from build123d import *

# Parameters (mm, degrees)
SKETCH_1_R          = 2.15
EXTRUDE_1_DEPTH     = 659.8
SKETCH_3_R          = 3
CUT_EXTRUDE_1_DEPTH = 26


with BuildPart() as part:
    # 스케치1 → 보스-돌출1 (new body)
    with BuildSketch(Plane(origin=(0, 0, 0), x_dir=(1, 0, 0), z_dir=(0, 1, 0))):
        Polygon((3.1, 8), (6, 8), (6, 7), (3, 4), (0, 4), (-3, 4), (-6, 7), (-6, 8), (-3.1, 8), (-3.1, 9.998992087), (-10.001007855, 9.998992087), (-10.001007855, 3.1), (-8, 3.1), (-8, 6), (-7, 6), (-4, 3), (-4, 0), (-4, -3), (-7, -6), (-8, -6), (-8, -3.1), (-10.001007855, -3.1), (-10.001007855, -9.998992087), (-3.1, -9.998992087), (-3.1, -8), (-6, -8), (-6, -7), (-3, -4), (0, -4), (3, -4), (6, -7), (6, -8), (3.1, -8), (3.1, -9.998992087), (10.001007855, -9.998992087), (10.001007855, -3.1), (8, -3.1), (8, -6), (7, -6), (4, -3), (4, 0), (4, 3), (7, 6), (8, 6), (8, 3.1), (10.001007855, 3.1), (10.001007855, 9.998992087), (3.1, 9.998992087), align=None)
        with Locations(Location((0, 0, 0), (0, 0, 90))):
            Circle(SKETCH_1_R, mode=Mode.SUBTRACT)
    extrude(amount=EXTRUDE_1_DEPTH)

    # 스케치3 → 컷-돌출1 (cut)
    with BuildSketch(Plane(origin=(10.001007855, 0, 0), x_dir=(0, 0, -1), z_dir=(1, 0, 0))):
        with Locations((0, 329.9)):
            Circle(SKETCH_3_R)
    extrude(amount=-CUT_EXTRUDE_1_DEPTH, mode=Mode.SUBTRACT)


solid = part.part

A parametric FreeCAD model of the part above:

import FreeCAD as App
import Part
import Sketcher
from FreeCAD import Vector
Q = App.Units.Quantity

doc = App.newDocument("Part")
body = doc.addObject("PartDesign::Body", "Body")

# Sketch on XZ plane
sketch1 = doc.addObject("Sketcher::SketchObject", "Sketch")
body.addObject(sketch1)
sketch1.AttachmentSupport = (doc.XZ_Plane, [""])
sketch1.MapMode = "FlatFace"
sketch1.addGeometry(Part.LineSegment(Vector(3.1, -8, 0), Vector(6, -8, 0)), False)
sketch1.addGeometry(Part.LineSegment(Vector(6, -8, 0), Vector(6, -7, 0)), False)
sketch1.addGeometry(Part.LineSegment(Vector(6, -7, 0), Vector(3, -4, 0)), False)
sketch1.addGeometry(Part.LineSegment(Vector(3, -4, 0), Vector(-3, -4, 0)), False)
sketch1.addGeometry(Part.LineSegment(Vector(-3, -4, 0), Vector(-6, -7, 0)), False)
sketch1.addGeometry(Part.LineSegment(Vector(-6, -7, 0), Vector(-6, -8, 0)), False)
sketch1.addGeometry(Part.LineSegment(Vector(-6, -8, 0), Vector(-3.1, -8, 0)), False)
sketch1.addGeometry(Part.LineSegment(Vector(-3.1, -8, 0), Vector(-3.1, -10, 0)), False)
sketch1.addGeometry(Part.LineSegment(Vector(-3.1, -10, 0), Vector(-10, -10, 0)), False)
sketch1.addGeometry(Part.LineSegment(Vector(-10, -10, 0), Vector(-10, -3.1, 0)), False)
sketch1.addGeometry(Part.LineSegment(Vector(-10, -3.1, 0), Vector(-8, -3.1, 0)), False)
sketch1.addGeometry(Part.LineSegment(Vector(-8, -3.1, 0), Vector(-8, -6, 0)), False)
sketch1.addGeometry(Part.LineSegment(Vector(-8, -6, 0), Vector(-7, -6, 0)), False)
sketch1.addGeometry(Part.LineSegment(Vector(-7, -6, 0), Vector(-4, -3, 0)), False)
sketch1.addGeometry(Part.LineSegment(Vector(-4, -3, 0), Vector(-4, 3, 0)), False)
sketch1.addGeometry(Part.LineSegment(Vector(-4, 3, 0), Vector(-7, 6, 0)), False)
sketch1.addGeometry(Part.LineSegment(Vector(-7, 6, 0), Vector(-8, 6, 0)), False)
sketch1.addGeometry(Part.LineSegment(Vector(-8, 6, 0), Vector(-8, 3.1, 0)), False)
sketch1.addGeometry(Part.LineSegment(Vector(-8, 3.1, 0), Vector(-10, 3.1, 0)), False)
sketch1.addGeometry(Part.LineSegment(Vector(-10, 3.1, 0), Vector(-10, 10, 0)), False)
sketch1.addGeometry(Part.LineSegment(Vector(-10, 10, 0), Vector(-3.1, 10, 0)), False)
sketch1.addGeometry(Part.LineSegment(Vector(-3.1, 10, 0), Vector(-3.1, 8, 0)), False)
sketch1.addGeometry(Part.LineSegment(Vector(-3.1, 8, 0), Vector(-6, 8, 0)), False)
sketch1.addGeometry(Part.LineSegment(Vector(-6, 8, 0), Vector(-6, 7, 0)), False)
sketch1.addGeometry(Part.LineSegment(Vector(-6, 7, 0), Vector(-3, 4, 0)), False)
sketch1.addGeometry(Part.LineSegment(Vector(-3, 4, 0), Vector(3, 4, 0)), False)
sketch1.addGeometry(Part.LineSegment(Vector(3, 4, 0), Vector(6, 7, 0)), False)
sketch1.addGeometry(Part.LineSegment(Vector(6, 7, 0), Vector(6, 8, 0)), False)
sketch1.addGeometry(Part.LineSegment(Vector(6, 8, 0), Vector(3.1, 8, 0)), False)
sketch1.addGeometry(Part.LineSegment(Vector(3.1, 8, 0), Vector(3.1, 10, 0)), False)
sketch1.addGeometry(Part.LineSegment(Vector(3.1, 10, 0), Vector(10, 10, 0)), False)
sketch1.addGeometry(Part.LineSegment(Vector(10, 10, 0), Vector(10, 3.1, 0)), False)
sketch1.addGeometry(Part.LineSegment(Vector(10, 3.1, 0), Vector(8, 3.1, 0)), False)
sketch1.addGeometry(Part.LineSegment(Vector(8, 3.1, 0), Vector(8, 6, 0)), False)
sketch1.addGeometry(Part.LineSegment(Vector(8, 6, 0), Vector(7, 6, 0)), False)
sketch1.addGeometry(Part.LineSegment(Vector(7, 6, 0), Vector(4, 3, 0)), False)
sketch1.addGeometry(Part.LineSegment(Vector(4, 3, 0), Vector(4, -3, 0)), False)
sketch1.addGeometry(Part.LineSegment(Vector(4, -3, 0), Vector(7, -6, 0)), False)
sketch1.addGeometry(Part.LineSegment(Vector(7, -6, 0), Vector(8, -6, 0)), False)
sketch1.addGeometry(Part.LineSegment(Vector(8, -6, 0), Vector(8, -3.1, 0)), False)
sketch1.addGeometry(Part.LineSegment(Vector(8, -3.1, 0), Vector(10, -3.1, 0)), False)
sketch1.addGeometry(Part.LineSegment(Vector(10, -3.1, 0), Vector(10, -10, 0)), False)
sketch1.addGeometry(Part.LineSegment(Vector(10, -10, 0), Vector(3.1, -10, 0)), False)
sketch1.addGeometry(Part.LineSegment(Vector(3.1, -10, 0), Vector(3.1, -8, 0)), False)
sketch1.addGeometry(Part.Circle(Vector(0, 0, 0), Vector(0, 0, 1), 2.1), False)
sketch1.addConstraint(Sketcher.Constraint("Coincident", 0, 2, 1, 1))
sketch1.addConstraint(Sketcher.Constraint("Coincident", 1, 2, 2, 1))
sketch1.addConstraint(Sketcher.Constraint("Coincident", 2, 2, 3, 1))
sketch1.addConstraint(Sketcher.Constraint("Coincident", 3, 2, 4, 1))
sketch1.addConstraint(Sketcher.Constraint("Coincident", 4, 2, 5, 1))
sketch1.addConstraint(Sketcher.Constraint("Coincident", 5, 2, 6, 1))
sketch1.addConstraint(Sketcher.Constraint("Coincident", 6, 2, 7, 1))
sketch1.addConstraint(Sketcher.Constraint("Coincident", 7, 2, 8, 1))
sketch1.addConstraint(Sketcher.Constraint("Coincident", 8, 2, 9, 1))
sketch1.addConstraint(Sketcher.Constraint("Coincident", 9, 2, 10, 1))
sketch1.addConstraint(Sketcher.Constraint("Coincident", 10, 2, 11, 1))
sketch1.addConstraint(Sketcher.Constraint("Coincident", 11, 2, 12, 1))
sketch1.addConstraint(Sketcher.Constraint("Coincident", 12, 2, 13, 1))
sketch1.addConstraint(Sketcher.Constraint("Coincident", 13, 2, 14, 1))
sketch1.addConstraint(Sketcher.Constraint("Coincident", 14, 2, 15, 1))
sketch1.addConstraint(Sketcher.Constraint("Coincident", 15, 2, 16, 1))
sketch1.addConstraint(Sketcher.Constraint("Coincident", 16, 2, 17, 1))
sketch1.addConstraint(Sketcher.Constraint("Coincident", 17, 2, 18, 1))
sketch1.addConstraint(Sketcher.Constraint("Coincident", 18, 2, 19, 1))
sketch1.addConstraint(Sketcher.Constraint("Coincident", 19, 2, 20, 1))
sketch1.addConstraint(Sketcher.Constraint("Coincident", 20, 2, 21, 1))
sketch1.addConstraint(Sketcher.Constraint("Coincident", 21, 2, 22, 1))
sketch1.addConstraint(Sketcher.Constraint("Coincident", 22, 2, 23, 1))
sketch1.addConstraint(Sketcher.Constraint("Coincident", 23, 2, 24, 1))
sketch1.addConstraint(Sketcher.Constraint("Coincident", 24, 2, 25, 1))
sketch1.addConstraint(Sketcher.Constraint("Coincident", 25, 2, 26, 1))
sketch1.addConstraint(Sketcher.Constraint("Coincident", 26, 2, 27, 1))
sketch1.addConstraint(Sketcher.Constraint("Coincident", 27, 2, 28, 1))
sketch1.addConstraint(Sketcher.Constraint("Coincident", 28, 2, 29, 1))
sketch1.addConstraint(Sketcher.Constraint("Coincident", 29, 2, 30, 1))
sketch1.addConstraint(Sketcher.Constraint("Coincident", 30, 2, 31, 1))
sketch1.addConstraint(Sketcher.Constraint("Coincident", 31, 2, 32, 1))
sketch1.addConstraint(Sketcher.Constraint("Coincident", 32, 2, 33, 1))
sketch1.addConstraint(Sketcher.Constraint("Coincident", 33, 2, 34, 1))
sketch1.addConstraint(Sketcher.Constraint("Coincident", 34, 2, 35, 1))
sketch1.addConstraint(Sketcher.Constraint("Coincident", 35, 2, 36, 1))
sketch1.addConstraint(Sketcher.Constraint("Coincident", 36, 2, 37, 1))
sketch1.addConstraint(Sketcher.Constraint("Coincident", 37, 2, 38, 1))
sketch1.addConstraint(Sketcher.Constraint("Coincident", 38, 2, 39, 1))
sketch1.addConstraint(Sketcher.Constraint("Coincident", 39, 2, 40, 1))
sketch1.addConstraint(Sketcher.Constraint("Coincident", 40, 2, 41, 1))
sketch1.addConstraint(Sketcher.Constraint("Coincident", 41, 2, 42, 1))
sketch1.addConstraint(Sketcher.Constraint("Coincident", 42, 2, 43, 1))
sketch1.addConstraint(Sketcher.Constraint("Coincident", 43, 2, 0, 1))
sketch1.addConstraint(Sketcher.Constraint("Horizontal", 0))
sketch1.addConstraint(Sketcher.Constraint("Vertical", 1))
sketch1.addConstraint(Sketcher.Constraint("Horizontal", 3))
sketch1.addConstraint(Sketcher.Constraint("Vertical", 5))
sketch1.addConstraint(Sketcher.Constraint("Horizontal", 6))
sketch1.addConstraint(Sketcher.Constraint("Vertical", 7))
sketch1.addConstraint(Sketcher.Constraint("Horizontal", 8))
sketch1.addConstraint(Sketcher.Constraint("Vertical", 9))
sketch1.addConstraint(Sketcher.Constraint("Horizontal", 10))
sketch1.addConstraint(Sketcher.Constraint("Vertical", 11))
sketch1.addConstraint(Sketcher.Constraint("Horizontal", 12))
sketch1.addConstraint(Sketcher.Constraint("Vertical", 14))
sketch1.addConstraint(Sketcher.Constraint("Horizontal", 16))
sketch1.addConstraint(Sketcher.Constraint("Vertical", 17))
sketch1.addConstraint(Sketcher.Constraint("Horizontal", 18))
sketch1.addConstraint(Sketcher.Constraint("Vertical", 19))
sketch1.addConstraint(Sketcher.Constraint("Horizontal", 20))
sketch1.addConstraint(Sketcher.Constraint("Vertical", 21))
sketch1.addConstraint(Sketcher.Constraint("Horizontal", 22))
sketch1.addConstraint(Sketcher.Constraint("Vertical", 23))
sketch1.addConstraint(Sketcher.Constraint("Horizontal", 25))
sketch1.addConstraint(Sketcher.Constraint("Vertical", 27))
sketch1.addConstraint(Sketcher.Constraint("Horizontal", 28))
sketch1.addConstraint(Sketcher.Constraint("Vertical", 29))
sketch1.addConstraint(Sketcher.Constraint("Horizontal", 30))
sketch1.addConstraint(Sketcher.Constraint("Vertical", 31))
sketch1.addConstraint(Sketcher.Constraint("Horizontal", 32))
sketch1.addConstraint(Sketcher.Constraint("Vertical", 33))
sketch1.addConstraint(Sketcher.Constraint("Horizontal", 34))
sketch1.addConstraint(Sketcher.Constraint("Vertical", 36))
sketch1.addConstraint(Sketcher.Constraint("Horizontal", 38))
sketch1.addConstraint(Sketcher.Constraint("Vertical", 39))
sketch1.addConstraint(Sketcher.Constraint("Horizontal", 40))
sketch1.addConstraint(Sketcher.Constraint("Vertical", 41))
sketch1.addConstraint(Sketcher.Constraint("Horizontal", 42))
sketch1.addConstraint(Sketcher.Constraint("Vertical", 43))
sketch1.addConstraint(Sketcher.Constraint("Coincident", 44, 3, -1, 1))
sketch1.addConstraint(Sketcher.Constraint("Symmetric", 0, 2, 22, 2, -1, 1))
sketch1.addConstraint(Sketcher.Constraint("Symmetric", 2, 2, 24, 2, -1, 1))
sketch1.addConstraint(Sketcher.Constraint("Symmetric", 4, 2, 26, 2, -1, 1))
sketch1.addConstraint(Sketcher.Constraint("Symmetric", 6, 2, 28, 2, -1, 1))
sketch1.addConstraint(Sketcher.Constraint("Symmetric", 8, 2, 30, 2, -1, 1))
sketch1.addConstraint(Sketcher.Constraint("Symmetric", 10, 2, 32, 2, -1, 1))
sketch1.addConstraint(Sketcher.Constraint("Symmetric", 12, 2, 34, 2, -1, 1))
sketch1.addConstraint(Sketcher.Constraint("Symmetric", 13, 2, 35, 2, -1, 1))
sketch1.addConstraint(Sketcher.Constraint("Symmetric", 15, 2, 37, 2, -1, 1))
sketch1.addConstraint(Sketcher.Constraint("Symmetric", 17, 2, 39, 2, -1, 1))
sketch1.addConstraint(Sketcher.Constraint("Symmetric", 19, 2, 41, 2, -1, 1))
sketch1.addConstraint(Sketcher.Constraint("Symmetric", 1, 2, 4, 2, -2))
sketch1.addConstraint(Sketcher.Constraint("Symmetric", 21, 2, 28, 2, -2))
sketch1.addConstraint(Sketcher.Constraint("Symmetric", 19, 2, 30, 2, -2))
sketch1.addConstraint(Sketcher.Constraint("Symmetric", 17, 2, 32, 2, -2))
sketch1.addConstraint(Sketcher.Constraint("Symmetric", 15, 2, 34, 2, -2))
sketch1.addConstraint(Sketcher.Constraint("Perpendicular", 2, 4))
sketch1.addConstraint(Sketcher.Constraint("Parallel", 4, 13))
sketch1.addConstraint(Sketcher.Constraint("Perpendicular", 13, 15))
sketch1.addConstraint(Sketcher.Constraint("Parallel", 15, 24))
sketch1.addConstraint(Sketcher.Constraint("Perpendicular", 24, 26))
sketch1.addConstraint(Sketcher.Constraint("Perpendicular", 35, 37))
sketch1.addConstraint(Sketcher.Constraint("Horizontal", 14, 2, 35, 2))
sketch1.addConstraint(Sketcher.Constraint("Vertical", 29, 2, 42, 2))
sketch1.addConstraint(Sketcher.Constraint("Equal", 38, 1))
sketch1.addConstraint(Sketcher.Constraint("Equal", 28, 11))
sketch1.addConstraint(Sketcher.Constraint("Equal", 25, 14))
sketch1.addConstraint(Sketcher.Constraint("Equal", 4, 13))
sketch1.addConstraint(Sketcher.Constraint("Diameter", 44, Q("4.3 mm")))
sketch1.addConstraint(Sketcher.Constraint("DistanceX", 3, 2, 3, 1, Q("6 mm")))
sketch1.addConstraint(Sketcher.Constraint("DistanceX", 12, 1, 12, 2, Q("1 mm")))
sketch1.addConstraint(Sketcher.Constraint("DistanceX", 0, 1, 0, 2, Q("2.9 mm")))
sketch1.addConstraint(Sketcher.Constraint("DistanceX", -1, 1, 0, 2, Q("6 mm")))
sketch1.addConstraint(Sketcher.Constraint("DistanceY", 0, 2, -1, 1, Q("8 mm")))
sketch1.addConstraint(Sketcher.Constraint("DistanceX", 10, 2, -1, 1, Q("8 mm")))
sketch1.addConstraint(Sketcher.Constraint("DistanceX", 8, 2, 8, 1, Q("6.901008 mm")))
sketch1.addConstraint(Sketcher.Constraint("DistanceY", 7, 2, 7, 1, Q("1.998992 mm")))
pad1 = doc.addObject("PartDesign::Pad", "Pad")
body.addObject(pad1)
pad1.Profile = sketch1
pad1.Length = 659.8
pad1.Reversed = True

# Sketch on YZ plane
sketch2 = doc.addObject("Sketcher::SketchObject", "Sketch001")
body.addObject(sketch2)
sketch2.AttachmentSupport = (doc.YZ_Plane, [""])
sketch2.MapMode = "FlatFace"
sketch2.AttachmentOffset = App.Placement(Vector(0, 0, 10.001008), App.Rotation())
sketch2.addGeometry(Part.Circle(Vector(329.9, 0, 0), Vector(0, 0, 1), 3), False)
sketch2.addConstraint(Sketcher.Constraint("PointOnObject", 0, 3, -1))
sketch2.addConstraint(Sketcher.Constraint("Diameter", 0, Q("6 mm")))
sketch2.addConstraint(Sketcher.Constraint("DistanceX", -1, 1, 0, 3, Q("329.9 mm")))
pocket1 = doc.addObject("PartDesign::Pocket", "Pocket")
body.addObject(pocket1)
pocket1.Profile = sketch2
pocket1.Length = 26

doc.recompute()
